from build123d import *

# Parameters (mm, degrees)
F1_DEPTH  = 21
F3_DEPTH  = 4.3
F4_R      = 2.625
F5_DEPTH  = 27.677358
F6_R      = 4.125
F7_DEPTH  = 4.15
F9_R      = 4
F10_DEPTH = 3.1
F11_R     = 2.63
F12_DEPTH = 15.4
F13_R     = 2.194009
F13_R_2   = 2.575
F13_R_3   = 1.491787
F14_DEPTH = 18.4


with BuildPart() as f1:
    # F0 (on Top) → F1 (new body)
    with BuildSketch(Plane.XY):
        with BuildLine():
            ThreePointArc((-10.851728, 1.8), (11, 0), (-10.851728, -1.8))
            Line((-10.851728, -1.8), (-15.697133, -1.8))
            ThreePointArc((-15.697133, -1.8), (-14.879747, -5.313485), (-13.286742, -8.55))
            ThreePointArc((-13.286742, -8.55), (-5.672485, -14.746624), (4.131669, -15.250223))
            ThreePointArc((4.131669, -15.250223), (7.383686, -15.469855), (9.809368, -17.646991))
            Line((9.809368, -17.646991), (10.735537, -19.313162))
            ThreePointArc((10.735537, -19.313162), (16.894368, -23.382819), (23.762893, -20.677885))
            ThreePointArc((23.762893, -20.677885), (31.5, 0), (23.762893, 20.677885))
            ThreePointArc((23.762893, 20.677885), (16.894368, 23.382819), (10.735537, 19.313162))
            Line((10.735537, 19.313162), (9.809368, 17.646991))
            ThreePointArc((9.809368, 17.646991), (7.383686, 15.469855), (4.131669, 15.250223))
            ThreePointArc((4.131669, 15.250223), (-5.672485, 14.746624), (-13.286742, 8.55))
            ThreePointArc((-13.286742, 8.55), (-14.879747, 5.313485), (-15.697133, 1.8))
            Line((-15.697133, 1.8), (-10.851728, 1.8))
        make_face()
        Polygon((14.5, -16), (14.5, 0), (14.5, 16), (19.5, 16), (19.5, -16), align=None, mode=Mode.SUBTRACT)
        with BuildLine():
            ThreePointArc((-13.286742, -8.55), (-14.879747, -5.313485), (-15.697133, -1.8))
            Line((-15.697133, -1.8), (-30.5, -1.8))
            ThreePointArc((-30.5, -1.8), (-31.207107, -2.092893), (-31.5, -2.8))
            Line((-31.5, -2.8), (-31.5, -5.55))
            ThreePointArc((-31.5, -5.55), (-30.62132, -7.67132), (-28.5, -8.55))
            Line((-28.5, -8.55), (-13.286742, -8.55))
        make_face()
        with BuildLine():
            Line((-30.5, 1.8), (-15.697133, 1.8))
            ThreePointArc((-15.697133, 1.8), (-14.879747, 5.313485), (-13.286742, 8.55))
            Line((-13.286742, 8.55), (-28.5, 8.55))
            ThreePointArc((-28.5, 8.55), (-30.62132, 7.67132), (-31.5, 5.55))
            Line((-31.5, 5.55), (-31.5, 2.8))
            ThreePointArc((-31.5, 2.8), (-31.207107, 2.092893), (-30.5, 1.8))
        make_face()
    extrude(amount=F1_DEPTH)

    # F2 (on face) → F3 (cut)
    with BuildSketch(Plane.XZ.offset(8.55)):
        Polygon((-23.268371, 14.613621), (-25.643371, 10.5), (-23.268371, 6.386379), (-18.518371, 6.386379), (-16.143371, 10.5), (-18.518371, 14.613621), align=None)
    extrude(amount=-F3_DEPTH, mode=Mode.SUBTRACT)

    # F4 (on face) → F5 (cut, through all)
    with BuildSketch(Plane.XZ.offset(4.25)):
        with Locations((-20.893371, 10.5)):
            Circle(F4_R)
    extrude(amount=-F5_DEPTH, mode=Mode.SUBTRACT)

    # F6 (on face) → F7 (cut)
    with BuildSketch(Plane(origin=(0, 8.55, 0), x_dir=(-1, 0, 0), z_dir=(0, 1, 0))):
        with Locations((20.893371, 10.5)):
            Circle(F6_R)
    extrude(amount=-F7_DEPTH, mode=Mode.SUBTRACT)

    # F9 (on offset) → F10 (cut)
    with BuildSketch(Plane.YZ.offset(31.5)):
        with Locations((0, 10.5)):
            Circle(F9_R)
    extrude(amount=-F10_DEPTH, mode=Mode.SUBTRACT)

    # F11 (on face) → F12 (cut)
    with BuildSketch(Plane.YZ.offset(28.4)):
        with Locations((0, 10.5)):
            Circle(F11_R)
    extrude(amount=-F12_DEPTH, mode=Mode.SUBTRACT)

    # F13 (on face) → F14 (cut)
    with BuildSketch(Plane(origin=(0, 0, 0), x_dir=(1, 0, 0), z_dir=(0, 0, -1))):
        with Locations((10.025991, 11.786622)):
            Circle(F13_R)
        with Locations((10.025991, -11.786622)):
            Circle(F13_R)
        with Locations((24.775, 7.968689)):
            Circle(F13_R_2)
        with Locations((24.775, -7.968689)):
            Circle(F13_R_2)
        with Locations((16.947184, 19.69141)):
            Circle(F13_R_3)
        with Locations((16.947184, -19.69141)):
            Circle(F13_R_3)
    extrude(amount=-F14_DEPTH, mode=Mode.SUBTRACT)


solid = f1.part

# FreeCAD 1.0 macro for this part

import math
import FreeCAD as App
import Part
import Sketcher
Q = App.Units.Quantity

doc = App.newDocument("Part")
body = doc.addObject("PartDesign::Body", "Body")

sketch1 = doc.addObject("Sketcher::SketchObject", "Sketch")
body.addObject(sketch1)
sketch1.AttachmentSupport = (doc.XY_Plane, [""])
sketch1.MapMode = "FlatFace"
sketch1.addGeometry([
    Part.ArcOfCircle(Part.Circle(App.Vector(0, 0, 0), App.Vector(0, 0, 1), 11), math.radians(-170.581973), math.radians(170.581973)),
    Part.LineSegment(App.Vector(-10.851728, -1.8, 0), App.Vector(-30.5, -1.8, 0)),
    Part.ArcOfCircle(Part.Circle(App.Vector(-30.500001, -2.799999, 0), App.Vector(0, 0, 1), 0.999999), math.radians(89.999957), math.radians(180.000043)),
    Part.LineSegment(App.Vector(-31.5, -2.8, 0), App.Vector(-31.5, -5.55, 0)),
    Part.ArcOfCircle(Part.Circle(App.Vector(-28.499999, -5.549999, 0), App.Vector(0, 0, 1), 3.000001), math.radians(-179.999978), math.radians(-90.000022)),
    Part.LineSegment(App.Vector(-28.5, -8.55, 0), App.Vector(-13.286742, -8.55, 0)),
    Part.ArcOfCircle(Part.Circle(App.Vector(-0.000001, 0, 0), App.Vector(0, 0, 1), 15.8), math.radians(-147.238775), math.radians(-74.841028)),
    Part.ArcOfCircle(Part.Circle(App.Vector(5.439158, -20.076243, 0), App.Vector(0, 0, 1), 5), math.radians(29.068203), math.radians(105.158962)),
    Part.LineSegment(App.Vector(9.809368, -17.646991, 0), App.Vector(10.735537, -19.313162, 0)),
    Part.ArcOfCircle(Part.Circle(App.Vector(17.727873, -15.426358, 0), App.Vector(0, 0, 1), 8.000001), math.radians(-150.931789), math.radians(-41.028996)),
    Part.ArcOfCircle(Part.Circle(App.Vector(-0.000001, 0, 0), App.Vector(0, 0, 1), 31.500001), math.radians(-41.028988), math.radians(41.028988)),
    Part.ArcOfCircle(Part.Circle(App.Vector(17.727873, 15.426358, 0), App.Vector(0, 0, 1), 8.000001), math.radians(41.028996), math.radians(150.931789)),
    Part.LineSegment(App.Vector(10.735537, 19.313162, 0), App.Vector(9.809368, 17.646991, 0)),
    Part.ArcOfCircle(Part.Circle(App.Vector(5.439158, 20.076243, 0), App.Vector(0, 0, 1), 5), math.radians(-105.158962), math.radians(-29.068203)),
    Part.ArcOfCircle(Part.Circle(App.Vector(-0.000001, 0, 0), App.Vector(0, 0, 1), 15.8), math.radians(74.841028), math.radians(147.238775)),
    Part.LineSegment(App.Vector(-13.286742, 8.55, 0), App.Vector(-28.5, 8.55, 0)),
    Part.ArcOfCircle(Part.Circle(App.Vector(-28.499999, 5.549999, 0), App.Vector(0, 0, 1), 3.000001), math.radians(90.000022), math.radians(179.999978)),
    Part.LineSegment(App.Vector(-31.5, 5.55, 0), App.Vector(-31.5, 2.8, 0)),
    Part.ArcOfCircle(Part.Circle(App.Vector(-30.500001, 2.799999, 0), App.Vector(0, 0, 1), 0.999999), math.radians(179.999957), math.radians(270.000043)),
    Part.LineSegment(App.Vector(-30.5, 1.8, 0), App.Vector(-10.851728, 1.8, 0)),
    Part.LineSegment(App.Vector(19.5, -16, 0), App.Vector(14.5, -16, 0)),
    Part.LineSegment(App.Vector(14.5, -16, 0), App.Vector(14.5, 16, 0)),
    Part.LineSegment(App.Vector(14.5, 16, 0), App.Vector(19.5, 16, 0)),
    Part.LineSegment(App.Vector(19.5, 16, 0), App.Vector(19.5, -16, 0)),
], False)
sketch1.addConstraint([
    Sketcher.Constraint("Coincident", 0, 1, 1, 1),
    Sketcher.Constraint("Tangent", 1, 2, 2, 1),
    Sketcher.Constraint("Tangent", 2, 2, 3, 1),
    Sketcher.Constraint("Tangent", 3, 2, 4, 1),
    Sketcher.Constraint("Tangent", 4, 2, 5, 1),
    Sketcher.Constraint("Coincident", 5, 2, 6, 1),
    Sketcher.Constraint("Tangent", 6, 2, 7, 2),
    Sketcher.Constraint("Tangent", 7, 1, 8, 1),
    Sketcher.Constraint("Tangent", 8, 2, 9, 1),
    Sketcher.Constraint("Tangent", 9, 2, 10, 1),
    Sketcher.Constraint("Tangent", 10, 2, 11, 1),
    Sketcher.Constraint("Tangent", 11, 2, 12, 1),
    Sketcher.Constraint("Tangent", 12, 2, 13, 2),
    Sketcher.Constraint("Tangent", 13, 1, 14, 1),
    Sketcher.Constraint("Coincident", 14, 2, 15, 1),
    Sketcher.Constraint("Tangent", 15, 2, 16, 1),
    Sketcher.Constraint("Tangent", 16, 2, 17, 1),
    Sketcher.Constraint("Tangent", 17, 2, 18, 1),
    Sketcher.Constraint("Tangent", 18, 2, 19, 1),
    Sketcher.Constraint("Coincident", 19, 2, 0, 2),
    Sketcher.Constraint("Coincident", 20, 2, 21, 1),
    Sketcher.Constraint("Coincident", 21, 2, 22, 1),
    Sketcher.Constraint("Coincident", 22, 2, 23, 1),
    Sketcher.Constraint("Coincident", 23, 2, 20, 1),
    Sketcher.Constraint("Horizontal", 1),
    Sketcher.Constraint("Vertical", 3),
    Sketcher.Constraint("Horizontal", 5),
    Sketcher.Constraint("Horizontal", 15),
    Sketcher.Constraint("Vertical", 17),
    Sketcher.Constraint("Horizontal", 19),
    Sketcher.Constraint("Horizontal", 20),
    Sketcher.Constraint("Vertical", 21),
    Sketcher.Constraint("Horizontal", 22),
    Sketcher.Constraint("Vertical", 23),
    Sketcher.Constraint("Coincident", 0, 3, -1, 1),
    Sketcher.Constraint("Coincident", 6, 3, -1, 1),
    Sketcher.Constraint("Coincident", 10, 3, -1, 1),
    Sketcher.Constraint("Coincident", 14, 3, -1, 1),
    Sketcher.Constraint("Equal", 9, 11),
    Sketcher.Constraint("Equal", 7, 13),
    Sketcher.Constraint("Equal", 6, 14),
    Sketcher.Constraint("Equal", 4, 16),
    Sketcher.Constraint("Equal", 2, 18),
    Sketcher.Constraint("Symmetric", 4, 3, 16, 3, -1),
    Sketcher.Constraint("Symmetric", 8, 2, 11, 2, -1),
    Sketcher.Constraint("Vertical", 0, 1, 19, 2),
    Sketcher.Constraint("Radius", 0, Q("11 mm")),
    Sketcher.Constraint("Radius", 2, Q("0.999999 mm")),
    Sketcher.Constraint("Radius", 4, Q("3.000001 mm")),
    Sketcher.Constraint("Radius", 7, Q("5 mm")),
    Sketcher.Constraint("Radius", 9, Q("8.000001 mm")),
    Sketcher.Constraint("Radius", 6, Q("15.8 mm")),
    Sketcher.Constraint("Radius", 10, Q("31.500001 mm")),
    Sketcher.Constraint("DistanceX", 20, 2, 20, 1, Q("5 mm")),
    Sketcher.Constraint("DistanceY", 21, 1, 21, 2, Q("32 mm")),
    Sketcher.Constraint("DistanceY", 20, 2, -1, 1, Q("16 mm")),
    Sketcher.Constraint("DistanceY", 3, 2, 3, 1, Q("2.75 mm")),
    Sketcher.Constraint("DistanceX", 2, 3, -1, 1, Q("30.500001 mm")),
    Sketcher.Constraint("DistanceY", 2, 3, -1, 1, Q("2.799999 mm")),
    Sketcher.Constraint("DistanceX", -1, 1, 20, 2, Q("14.5 mm")),
    Sketcher.Constraint("DistanceY", 7, 3, 11, 3, Q("35.5026 mm")),
    Sketcher.Constraint("DistanceX", 6, 2, 7, 1, Q("5.677699 mm")),
])
pad1 = doc.addObject("PartDesign::Pad", "Pad")
body.addObject(pad1)
pad1.Profile = sketch1
pad1.Length = 21

sketch2 = doc.addObject("Sketcher::SketchObject", "Sketch001")
body.addObject(sketch2)
sketch2.AttachmentSupport = (doc.XZ_Plane, [""])
sketch2.MapMode = "FlatFace"
sketch2.AttachmentOffset = App.Placement(App.Vector(0, 0, 8.55), App.Rotation())
sketch2.addGeometry([
    Part.LineSegment(App.Vector(-23.268371, 14.613621, 0), App.Vector(-25.643371, 10.5, 0)),
    Part.LineSegment(App.Vector(-25.643371, 10.5, 0), App.Vector(-23.268371, 6.386379, 0)),
    Part.LineSegment(App.Vector(-23.268371, 6.386379, 0), App.Vector(-18.518371, 6.386379, 0)),
    Part.LineSegment(App.Vector(-18.518371, 6.386379, 0), App.Vector(-16.143371, 10.5, 0)),
    Part.LineSegment(App.Vector(-16.143371, 10.5, 0), App.Vector(-18.518371, 14.613621, 0)),
    Part.LineSegment(App.Vector(-18.518371, 14.613621, 0), App.Vector(-23.268371, 14.613621, 0)),
], False)
sketch2.addConstraint([
    Sketcher.Constraint("Coincident", 0, 2, 1, 1),
    Sketcher.Constraint("Coincident", 1, 2, 2, 1),
    Sketcher.Constraint("Coincident", 2, 2, 3, 1),
    Sketcher.Constraint("Coincident", 3, 2, 4, 1),
    Sketcher.Constraint("Coincident", 4, 2, 5, 1),
    Sketcher.Constraint("Coincident", 5, 2, 0, 1),
    Sketcher.Constraint("Horizontal", 2),
    Sketcher.Constraint("Horizontal", 5),
    Sketcher.Constraint("Parallel", 0, 3),
    Sketcher.Constraint("Parallel", 1, 4),
    Sketcher.Constraint("Horizontal", 0, 2, 3, 2),
    Sketcher.Constraint("Vertical", 2, 2, 4, 2),
    Sketcher.Constraint("Vertical", 1, 2, 5, 2),
    Sketcher.Constraint("Angle", 0, Q("-119.999998 deg")),
    Sketcher.Constraint("DistanceX", 2, 1, 2, 2, Q("4.75 mm")),
    Sketcher.Constraint("DistanceY", -1, 1, 0, 2, Q("10.5 mm")),
    Sketcher.Constraint("DistanceX", 0, 2, 3, 2, Q("9.5 mm")),
    Sketcher.Constraint("DistanceX", 0, 2, -1, 1, Q("25.643371 mm")),
])
pocket1 = doc.addObject("PartDesign::Pocket", "Pocket")
body.addObject(pocket1)
pocket1.Profile = sketch2
pocket1.Length = 4.3

sketch3 = doc.addObject("Sketcher::SketchObject", "Sketch002")
body.addObject(sketch3)
sketch3.AttachmentSupport = (doc.XZ_Plane, [""])
sketch3.MapMode = "FlatFace"
sketch3.AttachmentOffset = App.Placement(App.Vector(0, 0, 4.25), App.Rotation())
sketch3.addGeometry(Part.Circle(App.Vector(-20.893371, 10.5, 0), App.Vector(0, 0, 1), 2.625), False)
sketch3.addConstraint([
    Sketcher.Constraint("Diameter", 0, Q("5.25 mm")),
    Sketcher.Constraint("DistanceY", -1, 1, 0, 3, Q("10.5 mm")),
    Sketcher.Constraint("DistanceX", 0, 3, -1, 1, Q("20.893371 mm")),
])
pocket2 = doc.addObject("PartDesign::Pocket", "Pocket001")
body.addObject(pocket2)
pocket2.Profile = sketch3
pocket2.Type = "ThroughAll"

sketch4 = doc.addObject("Sketcher::SketchObject", "Sketch003")
body.addObject(sketch4)
sketch4.AttachmentSupport = (doc.XZ_Plane, [""])
sketch4.MapMode = "FlatFace"
sketch4.AttachmentOffset = App.Placement(App.Vector(0, 0, -8.55), App.Rotation())
sketch4.addGeometry(Part.Circle(App.Vector(-20.893371, 10.5, 0), App.Vector(0, 0, 1), 4.125), False)
sketch4.addConstraint([
    Sketcher.Constraint("Diameter", 0, Q("8.25 mm")),
    Sketcher.Constraint("DistanceY", -1, 1, 0, 3, Q("10.5 mm")),
    Sketcher.Constraint("DistanceX", 0, 3, -1, 1, Q("20.893371 mm")),
])
pocket3 = doc.addObject("PartDesign::Pocket", "Pocket002")
body.addObject(pocket3)
pocket3.Profile = sketch4
pocket3.Length = 4.15
pocket3.Reversed = True

sketch5 = doc.addObject("Sketcher::SketchObject", "Sketch004")
body.addObject(sketch5)
sketch5.AttachmentSupport = (doc.YZ_Plane, [""])
sketch5.MapMode = "FlatFace"
sketch5.AttachmentOffset = App.Placement(App.Vector(0, 0, 31.5), App.Rotation())
sketch5.addGeometry(Part.Circle(App.Vector(0, 10.5, 0), App.Vector(0, 0, 1), 4), False)
sketch5.addConstraint([
    Sketcher.Constraint("PointOnObject", 0, 3, -2),
    Sketcher.Constraint("Diameter", 0, Q("8 mm")),
    Sketcher.Constraint("DistanceY", -1, 1, 0, 3, Q("10.5 mm")),
])
pocket4 = doc.addObject("PartDesign::Pocket", "Pocket003")
body.addObject(pocket4)
pocket4.Profile = sketch5
pocket4.Length = 3.1

sketch6 = doc.addObject("Sketcher::SketchObject", "Sketch005")
body.addObject(sketch6)
sketch6.AttachmentSupport = (doc.YZ_Plane, [""])
sketch6.MapMode = "FlatFace"
sketch6.AttachmentOffset = App.Placement(App.Vector(0, 0, 28.4), App.Rotation())
sketch6.addGeometry(Part.Circle(App.Vector(0, 10.5, 0), App.Vector(0, 0, 1), 2.63), False)
sketch6.addConstraint([
    Sketcher.Constraint("PointOnObject", 0, 3, -2),
    Sketcher.Constraint("Diameter", 0, Q("5.26 mm")),
    Sketcher.Constraint("DistanceY", -1, 1, 0, 3, Q("10.5 mm")),
])
pocket5 = doc.addObject("PartDesign::Pocket", "Pocket004")
body.addObject(pocket5)
pocket5.Profile = sketch6
pocket5.Length = 15.4

sketch7 = doc.addObject("Sketcher::SketchObject", "Sketch006")
body.addObject(sketch7)
sketch7.AttachmentSupport = (doc.XY_Plane, [""])
sketch7.MapMode = "FlatFace"
sketch7.addGeometry([
    Part.Circle(App.Vector(10.025991, -11.786622, 0), App.Vector(0, 0, 1), 2.194009),
    Part.Circle(App.Vector(10.025991, 11.786622, 0), App.Vector(0, 0, 1), 2.194009),
    Part.Circle(App.Vector(24.775, -7.968689, 0), App.Vector(0, 0, 1), 2.575),
    Part.Circle(App.Vector(24.775, 7.968689, 0), App.Vector(0, 0, 1), 2.575),
    Part.Circle(App.Vector(16.947184, -19.69141, 0), App.Vector(0, 0, 1), 1.491787),
    Part.Circle(App.Vector(16.947184, 19.69141, 0), App.Vector(0, 0, 1), 1.491787),
], False)
sketch7.addConstraint([
    Sketcher.Constraint("Equal", 0, 1),
    Sketcher.Constraint("Equal", 2, 3),
    Sketcher.Constraint("Equal", 4, 5),
    Sketcher.Constraint("Symmetric", 0, 3, 1, 3, -1),
    Sketcher.Constraint("Symmetric", 2, 3, 3, 3, -1),
    Sketcher.Constraint("Symmetric", 4, 3, 5, 3, -1),
    Sketcher.Constraint("Diameter", 2, Q("5.15 mm")),
    Sketcher.Constraint("Diameter", 0, Q("4.388018 mm")),
    Sketcher.Constraint("Diameter", 4, Q("2.983574 mm")),
    Sketcher.Constraint("DistanceX", -1, 1, 2, 3, Q("24.775 mm")),
    Sketcher.Constraint("DistanceY", 4, 3, 3, 3, Q("27.660099 mm")),
    Sketcher.Constraint("DistanceX", -1, 1, 0, 3, Q("10.025991 mm")),
    Sketcher.Constraint("DistanceY", 2, 3, -1, 1, Q("7.968689 mm")),
    Sketcher.Constraint("DistanceY", 2, 3, 1, 3, Q("19.755311 mm")),
    Sketcher.Constraint("DistanceX", -1, 1, 4, 3, Q("16.947184 mm")),
])
pocket6 = doc.addObject("PartDesign::Pocket", "Pocket005")
body.addObject(pocket6)
pocket6.Profile = sketch7
pocket6.Length = 18.4
pocket6.Reversed = True

doc.recompute()
